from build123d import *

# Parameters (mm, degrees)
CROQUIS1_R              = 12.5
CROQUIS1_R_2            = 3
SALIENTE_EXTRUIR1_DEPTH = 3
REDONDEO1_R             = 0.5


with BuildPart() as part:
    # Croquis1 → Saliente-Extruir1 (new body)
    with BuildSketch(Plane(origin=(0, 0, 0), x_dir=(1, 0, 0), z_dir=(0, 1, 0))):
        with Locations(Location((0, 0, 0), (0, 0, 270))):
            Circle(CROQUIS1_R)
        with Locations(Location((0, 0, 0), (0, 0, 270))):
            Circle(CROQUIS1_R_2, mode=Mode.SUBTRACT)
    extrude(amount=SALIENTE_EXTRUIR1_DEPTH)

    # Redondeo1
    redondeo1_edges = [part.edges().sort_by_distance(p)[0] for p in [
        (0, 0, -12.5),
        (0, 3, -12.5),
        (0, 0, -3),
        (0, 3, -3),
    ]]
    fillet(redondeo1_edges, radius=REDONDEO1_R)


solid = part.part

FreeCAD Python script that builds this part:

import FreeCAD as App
import Part
import Sketcher
Q = App.Units.Quantity


def edges_at(feature, points):
    """Names of the edges that pass closest to the given points."""
    edges = feature.Shape.Edges
    near = lambda p: min(range(len(edges)), key=lambda i: edges[i].distToShape(Part.Vertex(*p))[0])
    return sorted({f"Edge{near(p) + 1}" for p in points})

doc = App.newDocument("Part")
params = doc.addObject("Spreadsheet::Sheet", "Params")
for row, (alias, value) in enumerate([
    ("sketch1_diameter", "25 mm"),
    ("sketch1_diameter2", "6 mm"),
    ("pad1_length", "3 mm"),
    ("fillet_radius", "0.5 mm"),
], start=1):
    params.set(f"A{row}", alias)
    params.set(f"B{row}", "=" + value)
    params.setAlias(f"B{row}", alias)

body = doc.addObject("PartDesign::Body", "Body")

sketch1 = body.newObject("Sketcher::SketchObject", "Sketch")
sketch1.AttachmentSupport = (doc.getObject("XZ_Plane"), [""])
sketch1.MapMode = "FlatFace"
sketch1.addGeometry([
    Part.Circle(App.Vector(0, 0, 0), App.Vector(0, 0, 1), 12.5),
    Part.Circle(App.Vector(0, 0, 0), App.Vector(0, 0, 1), 3),
], False)
sketch1.addConstraint([
    Sketcher.Constraint("Coincident", 0, 3, -1, 1),
    Sketcher.Constraint("Coincident", 1, 3, -1, 1),
    Sketcher.Constraint("Diameter", 0, Q("25 mm")),
    Sketcher.Constraint("Diameter", 1, Q("6 mm")),
])
sketch1.setExpression("Constraints[2]", "Params.sketch1_diameter")
sketch1.setExpression("Constraints[3]", "Params.sketch1_diameter2")
pad1 = body.newObject("PartDesign::Pad", "Pad")
pad1.Profile = sketch1
pad1.setExpression("Length", "Params.pad1_length")
pad1.Reversed = True
doc.recompute()

fillet = body.newObject("PartDesign::Fillet", "Fillet")
fillet.Base = (pad1, edges_at(pad1, [
    (0, 0, -12.5),
    (0, 3, -12.5),
    (0, 0, -3),
    (0, 3, -3),
]))
fillet.setExpression("Radius", "Params.fillet_radius")

doc.recompute()
